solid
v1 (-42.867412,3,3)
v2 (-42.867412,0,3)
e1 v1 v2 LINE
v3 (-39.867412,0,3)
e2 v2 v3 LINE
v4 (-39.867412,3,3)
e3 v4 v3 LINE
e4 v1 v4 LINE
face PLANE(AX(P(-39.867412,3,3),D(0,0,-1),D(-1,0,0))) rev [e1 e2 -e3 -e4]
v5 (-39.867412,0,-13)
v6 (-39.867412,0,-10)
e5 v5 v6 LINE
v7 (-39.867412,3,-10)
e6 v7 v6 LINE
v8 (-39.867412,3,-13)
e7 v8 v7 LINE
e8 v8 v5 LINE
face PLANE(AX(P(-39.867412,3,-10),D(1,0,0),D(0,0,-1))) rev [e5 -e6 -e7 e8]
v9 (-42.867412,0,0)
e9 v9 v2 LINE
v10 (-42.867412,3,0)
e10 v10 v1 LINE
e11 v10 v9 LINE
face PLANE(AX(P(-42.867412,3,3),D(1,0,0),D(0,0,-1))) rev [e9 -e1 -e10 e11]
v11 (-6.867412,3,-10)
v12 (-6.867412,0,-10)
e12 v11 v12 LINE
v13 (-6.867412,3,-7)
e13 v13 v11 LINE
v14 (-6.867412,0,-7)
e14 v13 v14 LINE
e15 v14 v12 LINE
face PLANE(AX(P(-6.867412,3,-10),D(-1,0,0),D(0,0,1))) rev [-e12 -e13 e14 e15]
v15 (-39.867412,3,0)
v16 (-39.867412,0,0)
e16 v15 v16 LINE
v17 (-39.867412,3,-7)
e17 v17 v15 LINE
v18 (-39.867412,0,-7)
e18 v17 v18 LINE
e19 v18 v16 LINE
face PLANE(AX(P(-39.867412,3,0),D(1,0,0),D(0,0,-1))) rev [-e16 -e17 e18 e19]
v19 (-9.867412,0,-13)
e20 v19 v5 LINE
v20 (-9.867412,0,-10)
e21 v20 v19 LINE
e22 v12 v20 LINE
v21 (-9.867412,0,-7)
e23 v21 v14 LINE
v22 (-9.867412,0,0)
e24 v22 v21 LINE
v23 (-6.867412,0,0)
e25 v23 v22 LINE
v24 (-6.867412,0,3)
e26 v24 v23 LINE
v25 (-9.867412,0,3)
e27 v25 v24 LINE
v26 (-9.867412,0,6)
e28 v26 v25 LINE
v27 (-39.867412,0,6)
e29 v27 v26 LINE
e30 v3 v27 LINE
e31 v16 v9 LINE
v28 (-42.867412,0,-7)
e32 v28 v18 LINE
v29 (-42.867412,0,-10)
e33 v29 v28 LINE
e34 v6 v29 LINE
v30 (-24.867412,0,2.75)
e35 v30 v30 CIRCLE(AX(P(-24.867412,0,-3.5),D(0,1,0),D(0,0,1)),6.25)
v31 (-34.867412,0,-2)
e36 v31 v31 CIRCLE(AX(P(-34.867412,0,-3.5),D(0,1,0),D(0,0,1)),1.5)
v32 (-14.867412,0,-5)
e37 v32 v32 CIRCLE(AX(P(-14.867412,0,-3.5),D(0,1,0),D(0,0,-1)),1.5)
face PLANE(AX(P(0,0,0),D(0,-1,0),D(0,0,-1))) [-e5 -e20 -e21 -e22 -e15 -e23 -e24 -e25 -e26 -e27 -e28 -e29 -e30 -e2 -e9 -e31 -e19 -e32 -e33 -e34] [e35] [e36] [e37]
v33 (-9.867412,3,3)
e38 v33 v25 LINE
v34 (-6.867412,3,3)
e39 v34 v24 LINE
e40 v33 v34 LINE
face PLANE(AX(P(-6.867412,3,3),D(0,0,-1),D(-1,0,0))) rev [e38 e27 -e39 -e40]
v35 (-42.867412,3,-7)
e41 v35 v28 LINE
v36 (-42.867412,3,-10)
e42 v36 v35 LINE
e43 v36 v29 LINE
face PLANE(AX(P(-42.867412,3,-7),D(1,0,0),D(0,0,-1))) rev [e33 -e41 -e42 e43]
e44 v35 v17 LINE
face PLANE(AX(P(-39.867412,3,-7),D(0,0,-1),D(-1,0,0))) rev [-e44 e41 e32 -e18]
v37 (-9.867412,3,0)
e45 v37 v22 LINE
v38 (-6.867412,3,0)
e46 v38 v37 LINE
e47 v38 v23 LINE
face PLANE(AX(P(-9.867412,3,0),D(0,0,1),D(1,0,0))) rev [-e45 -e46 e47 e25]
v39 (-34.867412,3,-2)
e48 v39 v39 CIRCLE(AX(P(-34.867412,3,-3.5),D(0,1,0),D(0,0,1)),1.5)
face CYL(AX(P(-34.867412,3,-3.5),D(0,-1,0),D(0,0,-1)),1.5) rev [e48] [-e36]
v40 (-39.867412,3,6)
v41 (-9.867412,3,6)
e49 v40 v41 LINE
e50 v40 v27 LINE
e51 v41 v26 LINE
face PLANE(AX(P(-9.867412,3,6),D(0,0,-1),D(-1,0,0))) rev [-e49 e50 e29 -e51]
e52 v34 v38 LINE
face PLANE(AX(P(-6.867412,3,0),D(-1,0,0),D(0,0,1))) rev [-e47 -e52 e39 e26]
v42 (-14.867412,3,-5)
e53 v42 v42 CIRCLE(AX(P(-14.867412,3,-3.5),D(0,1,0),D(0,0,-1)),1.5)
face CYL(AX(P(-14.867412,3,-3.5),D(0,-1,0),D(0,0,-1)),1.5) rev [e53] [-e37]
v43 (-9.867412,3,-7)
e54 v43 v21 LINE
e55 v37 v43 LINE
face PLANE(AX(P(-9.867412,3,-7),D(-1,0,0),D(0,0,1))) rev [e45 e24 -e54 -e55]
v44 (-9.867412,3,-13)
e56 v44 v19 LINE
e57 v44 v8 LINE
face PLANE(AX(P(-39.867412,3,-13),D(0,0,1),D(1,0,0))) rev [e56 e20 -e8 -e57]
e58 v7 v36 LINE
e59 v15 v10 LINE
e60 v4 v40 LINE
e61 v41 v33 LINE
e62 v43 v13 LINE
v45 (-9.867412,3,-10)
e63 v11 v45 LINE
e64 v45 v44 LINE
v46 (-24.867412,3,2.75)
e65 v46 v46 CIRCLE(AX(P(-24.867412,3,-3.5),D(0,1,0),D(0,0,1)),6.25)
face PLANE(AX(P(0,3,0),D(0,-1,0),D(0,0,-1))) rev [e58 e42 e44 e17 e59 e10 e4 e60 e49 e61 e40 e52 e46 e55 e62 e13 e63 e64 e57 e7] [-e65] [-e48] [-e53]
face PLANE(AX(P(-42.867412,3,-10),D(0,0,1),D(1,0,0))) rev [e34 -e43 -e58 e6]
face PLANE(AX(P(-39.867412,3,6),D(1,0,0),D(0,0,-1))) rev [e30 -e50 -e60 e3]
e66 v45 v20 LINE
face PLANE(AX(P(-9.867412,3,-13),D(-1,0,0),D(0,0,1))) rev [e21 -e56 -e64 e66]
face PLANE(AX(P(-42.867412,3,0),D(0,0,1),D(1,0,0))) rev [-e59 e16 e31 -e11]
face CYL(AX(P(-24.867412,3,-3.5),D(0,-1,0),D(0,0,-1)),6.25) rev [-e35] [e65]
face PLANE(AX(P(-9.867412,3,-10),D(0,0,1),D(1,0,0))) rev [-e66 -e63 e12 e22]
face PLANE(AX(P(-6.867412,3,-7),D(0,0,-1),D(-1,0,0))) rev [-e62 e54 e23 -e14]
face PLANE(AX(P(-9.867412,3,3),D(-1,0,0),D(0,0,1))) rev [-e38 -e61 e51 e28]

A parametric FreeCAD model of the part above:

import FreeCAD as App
import Part
import Sketcher

V = App.Vector

doc = App.newDocument("Part")
body = doc.addObject("PartDesign::Body", "Body")

# Sketch on XZ plane
sketch1 = doc.addObject("Sketcher::SketchObject", "Sketch")
body.addObject(sketch1)
sketch1.AttachmentSupport = (doc.XZ_Plane, [""])
sketch1.MapMode = "FlatFace"
sketch1.addGeometry([
    Part.LineSegment(V(-42.9, -10, 0), V(-42.9, -7, 0)),  # 0
    Part.LineSegment(V(-42.9, -7, 0), V(-39.9, -7, 0)),  # 1
    Part.LineSegment(V(-39.9, -7, 0), V(-39.9, 0, 0)),  # 2
    Part.LineSegment(V(-39.9, 0, 0), V(-42.9, 0, 0)),  # 3
    Part.LineSegment(V(-42.9, 0, 0), V(-42.9, 3, 0)),  # 4
    Part.LineSegment(V(-42.9, 3, 0), V(-39.9, 3, 0)),  # 5
    Part.LineSegment(V(-39.9, 3, 0), V(-39.9, 6, 0)),  # 6
    Part.LineSegment(V(-39.9, 6, 0), V(-9.9, 6, 0)),  # 7
    Part.LineSegment(V(-9.9, 6, 0), V(-9.9, 3, 0)),  # 8
    Part.LineSegment(V(-9.9, 3, 0), V(-6.9, 3, 0)),  # 9
    Part.LineSegment(V(-6.9, 3, 0), V(-6.9, 0, 0)),  # 10
    Part.LineSegment(V(-6.9, 0, 0), V(-9.9, 0, 0)),  # 11
    Part.LineSegment(V(-9.9, 0, 0), V(-9.9, -7, 0)),  # 12
    Part.LineSegment(V(-9.9, -7, 0), V(-6.9, -7, 0)),  # 13
    Part.LineSegment(V(-6.9, -7, 0), V(-6.9, -10, 0)),  # 14
    Part.LineSegment(V(-6.9, -10, 0), V(-9.9, -10, 0)),  # 15
    Part.LineSegment(V(-9.9, -10, 0), V(-9.9, -13, 0)),  # 16
    Part.LineSegment(V(-9.9, -13, 0), V(-39.9, -13, 0)),  # 17
    Part.LineSegment(V(-39.9, -13, 0), V(-39.9, -10, 0)),  # 18
    Part.LineSegment(V(-39.9, -10, 0), V(-42.9, -10, 0)),  # 19
    Part.Circle(V(-14.9, -3.5, 0), V(0, 0, 1), 1.5),  # 20
    Part.Circle(V(-24.9, -3.5, 0), V(0, 0, 1), 6.2),  # 21
    Part.Circle(V(-34.9, -3.5, 0), V(0, 0, 1), 1.5),  # 22
], False)
sketch1.addConstraint([
    Sketcher.Constraint("Coincident", 0, 2, 1, 1),
    Sketcher.Constraint("Coincident", 1, 2, 2, 1),
    Sketcher.Constraint("Coincident", 2, 2, 3, 1),
    Sketcher.Constraint("Coincident", 3, 2, 4, 1),
    Sketcher.Constraint("Coincident", 4, 2, 5, 1),
    Sketcher.Constraint("Coincident", 5, 2, 6, 1),
    Sketcher.Constraint("Coincident", 6, 2, 7, 1),
    Sketcher.Constraint("Coincident", 7, 2, 8, 1),
    Sketcher.Constraint("Coincident", 8, 2, 9, 1),
    Sketcher.Constraint("Coincident", 9, 2, 10, 1),
    Sketcher.Constraint("Coincident", 10, 2, 11, 1),
    Sketcher.Constraint("Coincident", 11, 2, 12, 1),
    Sketcher.Constraint("Coincident", 12, 2, 13, 1),
    Sketcher.Constraint("Coincident", 13, 2, 14, 1),
    Sketcher.Constraint("Coincident", 14, 2, 15, 1),
    Sketcher.Constraint("Coincident", 15, 2, 16, 1),
    Sketcher.Constraint("Coincident", 16, 2, 17, 1),
    Sketcher.Constraint("Coincident", 17, 2, 18, 1),
    Sketcher.Constraint("Coincident", 18, 2, 19, 1),
    Sketcher.Constraint("Coincident", 19, 2, 0, 1),
    Sketcher.Constraint("Vertical", 0),
    Sketcher.Constraint("Horizontal", 1),
    Sketcher.Constraint("Vertical", 2),
    Sketcher.Constraint("Horizontal", 3),
    Sketcher.Constraint("Vertical", 4),
    Sketcher.Constraint("Horizontal", 5),
    Sketcher.Constraint("Vertical", 6),
    Sketcher.Constraint("Horizontal", 7),
    Sketcher.Constraint("Vertical", 8),
    Sketcher.Constraint("Horizontal", 9),
    Sketcher.Constraint("Vertical", 10),
    Sketcher.Constraint("Horizontal", 11),
    Sketcher.Constraint("Vertical", 12),
    Sketcher.Constraint("Horizontal", 13),
    Sketcher.Constraint("Vertical", 14),
    Sketcher.Constraint("Horizontal", 15),
    Sketcher.Constraint("Vertical", 16),
    Sketcher.Constraint("Horizontal", 17),
    Sketcher.Constraint("Vertical", 18),
    Sketcher.Constraint("Horizontal", 19),
    Sketcher.Constraint("Equal", 20, 22),
    Sketcher.Constraint("PointOnObject", 2, 2, -1),
    Sketcher.Constraint("PointOnObject", 10, 2, -1),
    Sketcher.Constraint("Horizontal", 20, 3, 21, 3),
    Sketcher.Constraint("Horizontal", 21, 3, 22, 3),
    Sketcher.Constraint("Horizontal", 5, 2, 8, 2),
    Sketcher.Constraint("Horizontal", 1, 2, 12, 2),
    Sketcher.Constraint("Horizontal", 15, 2, 18, 2),
    Sketcher.Constraint("Vertical", 0, 2, 3, 2),
    Sketcher.Constraint("Vertical", 2, 2, 5, 2),
    Sketcher.Constraint("Vertical", 8, 2, 11, 2),
    Sketcher.Constraint("Vertical", 10, 2, 13, 2),
    Sketcher.Constraint("Vertical", 12, 2, 15, 2),
    Sketcher.Constraint("Vertical", 6, 2, 17, 2),
    Sketcher.Constraint("Equal", 5, 9),
    Sketcher.Constraint("Equal", 19, 0),
    Sketcher.Constraint("Equal", 0, 4),
    Sketcher.Constraint("Equal", 4, 6),
    Sketcher.Constraint("Equal", 14, 16),
    Sketcher.Constraint("Diameter", 20, 3.0),
    Sketcher.Constraint("Diameter", 21, 12.5),
    Sketcher.Constraint("DistanceX", 1, 1, 1, 2, 3.0),
    Sketcher.Constraint("DistanceX", 7, 1, 7, 2, 30.0),
    Sketcher.Constraint("DistanceY", 2, 1, 2, 2, 7.0),
    Sketcher.Constraint("DistanceX", 21, 3, 20, 3, 10.0),
    Sketcher.Constraint("DistanceX", 22, 3, 21, 3, 10.0),
    Sketcher.Constraint("DistanceX", 0, 2, 22, 3, 8.0),
    Sketcher.Constraint("DistanceY", 20, 3, -1, 1, 3.5),
    Sketcher.Constraint("DistanceX", 20, 3, -1, 1, 14.867412),
])
pad1 = doc.addObject("PartDesign::Pad", "Pad")
body.addObject(pad1)
pad1.Profile = sketch1
pad1.Length = 3
pad1.Reversed = True

doc.recompute()
